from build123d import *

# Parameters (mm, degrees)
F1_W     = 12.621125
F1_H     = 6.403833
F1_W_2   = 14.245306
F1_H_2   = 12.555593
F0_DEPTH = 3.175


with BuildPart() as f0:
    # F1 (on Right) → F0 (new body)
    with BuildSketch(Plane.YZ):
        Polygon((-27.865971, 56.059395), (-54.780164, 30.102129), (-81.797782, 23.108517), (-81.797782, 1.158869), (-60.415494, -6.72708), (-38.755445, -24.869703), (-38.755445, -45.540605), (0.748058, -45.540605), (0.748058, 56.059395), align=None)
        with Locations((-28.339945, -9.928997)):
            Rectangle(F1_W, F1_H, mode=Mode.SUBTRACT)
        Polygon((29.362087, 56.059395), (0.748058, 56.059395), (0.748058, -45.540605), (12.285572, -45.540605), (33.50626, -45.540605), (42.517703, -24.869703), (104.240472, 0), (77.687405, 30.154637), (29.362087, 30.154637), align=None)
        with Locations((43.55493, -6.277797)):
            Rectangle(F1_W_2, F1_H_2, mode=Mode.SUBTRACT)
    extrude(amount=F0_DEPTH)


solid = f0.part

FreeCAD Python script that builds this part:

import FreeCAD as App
import Part
import Sketcher
Q = App.Units.Quantity

doc = App.newDocument("Part")
body = doc.addObject("PartDesign::Body", "Body")

sketch1 = body.newObject("Sketcher::SketchObject", "Sketch")
sketch1.AttachmentSupport = (doc.getObject("YZ_Plane"), [""])
sketch1.MapMode = "FlatFace"
sketch1.addGeometry(Part.LineSegment(App.Vector(-27.865971, 56.059395, 0), App.Vector(-54.780164, 30.102129, 0)), False)
sketch1.addGeometry(Part.LineSegment(App.Vector(-54.780164, 30.102129, 0), App.Vector(-81.797782, 23.108517, 0)), False)
sketch1.addGeometry(Part.LineSegment(App.Vector(-81.797782, 23.108517, 0), App.Vector(-81.797782, 1.158869, 0)), False)
sketch1.addGeometry(Part.LineSegment(App.Vector(-81.797782, 1.158869, 0), App.Vector(-60.415494, -6.72708, 0)), False)
sketch1.addGeometry(Part.LineSegment(App.Vector(-60.415494, -6.72708, 0), App.Vector(-38.755445, -24.869703, 0)), False)
sketch1.addGeometry(Part.LineSegment(App.Vector(-38.755445, -24.869703, 0), App.Vector(-38.755445, -45.540605, 0)), False)
sketch1.addGeometry(Part.LineSegment(App.Vector(-38.755445, -45.540605, 0), App.Vector(33.50626, -45.540605, 0)), False)
sketch1.addGeometry(Part.LineSegment(App.Vector(33.50626, -45.540605, 0), App.Vector(42.517703, -24.869703, 0)), False)
sketch1.addGeometry(Part.LineSegment(App.Vector(42.517703, -24.869703, 0), App.Vector(104.240472, 0, 0)), False)
sketch1.addGeometry(Part.LineSegment(App.Vector(104.240472, 0, 0), App.Vector(77.687405, 30.154637, 0)), False)
sketch1.addGeometry(Part.LineSegment(App.Vector(77.687405, 30.154637, 0), App.Vector(29.362087, 30.154637, 0)), False)
sketch1.addGeometry(Part.LineSegment(App.Vector(29.362087, 30.154637, 0), App.Vector(29.362087, 56.059395, 0)), False)
sketch1.addGeometry(Part.LineSegment(App.Vector(29.362087, 56.059395, 0), App.Vector(-27.865971, 56.059395, 0)), False)
sketch1.addGeometry(Part.LineSegment(App.Vector(-22.029383, -13.130914, 0), App.Vector(-34.650508, -13.130914, 0)), False)
sketch1.addGeometry(Part.LineSegment(App.Vector(-34.650508, -13.130914, 0), App.Vector(-34.650508, -6.72708, 0)), False)
sketch1.addGeometry(Part.LineSegment(App.Vector(-34.650508, -6.72708, 0), App.Vector(-22.029383, -6.72708, 0)), False)
sketch1.addGeometry(Part.LineSegment(App.Vector(-22.029383, -6.72708, 0), App.Vector(-22.029383, -13.130914, 0)), False)
sketch1.addGeometry(Part.LineSegment(App.Vector(50.677583, -12.555594, 0), App.Vector(36.432277, -12.555594, 0)), False)
sketch1.addGeometry(Part.LineSegment(App.Vector(36.432277, -12.555594, 0), App.Vector(36.432277, 0, 0)), False)
sketch1.addGeometry(Part.LineSegment(App.Vector(36.432277, 0, 0), App.Vector(50.677583, 0, 0)), False)
sketch1.addGeometry(Part.LineSegment(App.Vector(50.677583, 0, 0), App.Vector(50.677583, -12.555594, 0)), False)
sketch1.addConstraint(Sketcher.Constraint("Coincident", 0, 2, 1, 1))
sketch1.addConstraint(Sketcher.Constraint("Coincident", 1, 2, 2, 1))
sketch1.addConstraint(Sketcher.Constraint("Coincident", 2, 2, 3, 1))
sketch1.addConstraint(Sketcher.Constraint("Coincident", 3, 2, 4, 1))
sketch1.addConstraint(Sketcher.Constraint("Coincident", 4, 2, 5, 1))
sketch1.addConstraint(Sketcher.Constraint("Coincident", 5, 2, 6, 1))
sketch1.addConstraint(Sketcher.Constraint("Coincident", 6, 2, 7, 1))
sketch1.addConstraint(Sketcher.Constraint("Coincident", 7, 2, 8, 1))
sketch1.addConstraint(Sketcher.Constraint("Coincident", 8, 2, 9, 1))
sketch1.addConstraint(Sketcher.Constraint("Coincident", 9, 2, 10, 1))
sketch1.addConstraint(Sketcher.Constraint("Coincident", 10, 2, 11, 1))
sketch1.addConstraint(Sketcher.Constraint("Coincident", 11, 2, 12, 1))
sketch1.addConstraint(Sketcher.Constraint("Coincident", 12, 2, 0, 1))
sketch1.addConstraint(Sketcher.Constraint("Coincident", 13, 2, 14, 1))
sketch1.addConstraint(Sketcher.Constraint("Coincident", 14, 2, 15, 1))
sketch1.addConstraint(Sketcher.Constraint("Coincident", 15, 2, 16, 1))
sketch1.addConstraint(Sketcher.Constraint("Coincident", 16, 2, 13, 1))
sketch1.addConstraint(Sketcher.Constraint("Coincident", 17, 2, 18, 1))
sketch1.addConstraint(Sketcher.Constraint("Coincident", 18, 2, 19, 1))
sketch1.addConstraint(Sketcher.Constraint("Coincident", 19, 2, 20, 1))
sketch1.addConstraint(Sketcher.Constraint("Coincident", 20, 2, 17, 1))
sketch1.addConstraint(Sketcher.Constraint("Vertical", 2))
sketch1.addConstraint(Sketcher.Constraint("Vertical", 5))
sketch1.addConstraint(Sketcher.Constraint("Horizontal", 6))
sketch1.addConstraint(Sketcher.Constraint("Horizontal", 10))
sketch1.addConstraint(Sketcher.Constraint("Vertical", 11))
sketch1.addConstraint(Sketcher.Constraint("Horizontal", 12))
sketch1.addConstraint(Sketcher.Constraint("Horizontal", 13))
sketch1.addConstraint(Sketcher.Constraint("Vertical", 14))
sketch1.addConstraint(Sketcher.Constraint("Horizontal", 15))
sketch1.addConstraint(Sketcher.Constraint("Vertical", 16))
sketch1.addConstraint(Sketcher.Constraint("Horizontal", 17))
sketch1.addConstraint(Sketcher.Constraint("Vertical", 18))
sketch1.addConstraint(Sketcher.Constraint("Horizontal", 19))
sketch1.addConstraint(Sketcher.Constraint("Vertical", 20))
sketch1.addConstraint(Sketcher.Constraint("PointOnObject", 8, 2, -1))
sketch1.addConstraint(Sketcher.Constraint("PointOnObject", 18, 2, -1))
sketch1.addConstraint(Sketcher.Constraint("Horizontal", 4, 2, 7, 2))
sketch1.addConstraint(Sketcher.Constraint("Horizontal", 3, 2, 14, 2))
sketch1.addConstraint(Sketcher.Constraint("DistanceY", 5, 2, 5, 1, Q("20.670902 mm")))
sketch1.addConstraint(Sketcher.Constraint("DistanceY", 2, 2, 2, 1, Q("21.949648 mm")))
sketch1.addConstraint(Sketcher.Constraint("DistanceY", 11, 1, 11, 2, Q("25.904758 mm")))
sketch1.addConstraint(Sketcher.Constraint("DistanceY", 7, 2, 11, 2, Q("80.929098 mm")))
sketch1.addConstraint(Sketcher.Constraint("Distance", 0, Q("37.39189 mm")))
sketch1.addConstraint(Sketcher.Constraint("Distance", 3, Q("22.790139 mm")))
sketch1.addConstraint(Sketcher.Constraint("Distance", 8, Q("66.544739 mm")))
sketch1.addConstraint(Sketcher.Constraint("DistanceX", 6, 1, 6, 2, Q("72.261705 mm")))
sketch1.addConstraint(Sketcher.Constraint("DistanceX", 10, 2, 10, 1, Q("48.325318 mm")))
sketch1.addConstraint(Sketcher.Constraint("DistanceX", 12, 2, 12, 1, Q("57.228058 mm")))
sketch1.addConstraint(Sketcher.Constraint("DistanceX", 13, 2, 13, 1, Q("12.621125 mm")))
sketch1.addConstraint(Sketcher.Constraint("DistanceX", 17, 2, 17, 1, Q("14.245306 mm")))
sketch1.addConstraint(Sketcher.Constraint("DistanceY", 14, 1, 14, 2, Q("6.403833 mm")))
sketch1.addConstraint(Sketcher.Constraint("DistanceY", 18, 1, 18, 2, Q("12.555593 mm")))
sketch1.addConstraint(Sketcher.Constraint("DistanceY", -1, 1, 0, 2, Q("30.102129 mm")))
sketch1.addConstraint(Sketcher.Constraint("DistanceX", 1, 2, -1, 1, Q("81.797782 mm")))
sketch1.addConstraint(Sketcher.Constraint("DistanceY", -1, 1, 2, 2, Q("1.158869 mm")))
sketch1.addConstraint(Sketcher.Constraint("DistanceY", 3, 2, -1, 1, Q("6.72708 mm")))
sketch1.addConstraint(Sketcher.Constraint("DistanceX", -1, 1, 6, 2, Q("33.50626 mm")))
sketch1.addConstraint(Sketcher.Constraint("DistanceX", -1, 1, 8, 2, Q("104.240472 mm")))
sketch1.addConstraint(Sketcher.Constraint("DistanceX", 12, 2, -1, 1, Q("27.865971 mm")))
sketch1.addConstraint(Sketcher.Constraint("DistanceX", 3, 2, 0, 2, Q("5.63533 mm")))
sketch1.addConstraint(Sketcher.Constraint("DistanceX", 3, 2, 15, 2, Q("38.386111 mm")))
sketch1.addConstraint(Sketcher.Constraint("DistanceX", 10, 2, 17, 2, Q("7.07019 mm")))
pad1 = body.newObject("PartDesign::Pad", "Pad")
pad1.Profile = sketch1
pad1.Length = Q("0.125 in")

doc.recompute()
